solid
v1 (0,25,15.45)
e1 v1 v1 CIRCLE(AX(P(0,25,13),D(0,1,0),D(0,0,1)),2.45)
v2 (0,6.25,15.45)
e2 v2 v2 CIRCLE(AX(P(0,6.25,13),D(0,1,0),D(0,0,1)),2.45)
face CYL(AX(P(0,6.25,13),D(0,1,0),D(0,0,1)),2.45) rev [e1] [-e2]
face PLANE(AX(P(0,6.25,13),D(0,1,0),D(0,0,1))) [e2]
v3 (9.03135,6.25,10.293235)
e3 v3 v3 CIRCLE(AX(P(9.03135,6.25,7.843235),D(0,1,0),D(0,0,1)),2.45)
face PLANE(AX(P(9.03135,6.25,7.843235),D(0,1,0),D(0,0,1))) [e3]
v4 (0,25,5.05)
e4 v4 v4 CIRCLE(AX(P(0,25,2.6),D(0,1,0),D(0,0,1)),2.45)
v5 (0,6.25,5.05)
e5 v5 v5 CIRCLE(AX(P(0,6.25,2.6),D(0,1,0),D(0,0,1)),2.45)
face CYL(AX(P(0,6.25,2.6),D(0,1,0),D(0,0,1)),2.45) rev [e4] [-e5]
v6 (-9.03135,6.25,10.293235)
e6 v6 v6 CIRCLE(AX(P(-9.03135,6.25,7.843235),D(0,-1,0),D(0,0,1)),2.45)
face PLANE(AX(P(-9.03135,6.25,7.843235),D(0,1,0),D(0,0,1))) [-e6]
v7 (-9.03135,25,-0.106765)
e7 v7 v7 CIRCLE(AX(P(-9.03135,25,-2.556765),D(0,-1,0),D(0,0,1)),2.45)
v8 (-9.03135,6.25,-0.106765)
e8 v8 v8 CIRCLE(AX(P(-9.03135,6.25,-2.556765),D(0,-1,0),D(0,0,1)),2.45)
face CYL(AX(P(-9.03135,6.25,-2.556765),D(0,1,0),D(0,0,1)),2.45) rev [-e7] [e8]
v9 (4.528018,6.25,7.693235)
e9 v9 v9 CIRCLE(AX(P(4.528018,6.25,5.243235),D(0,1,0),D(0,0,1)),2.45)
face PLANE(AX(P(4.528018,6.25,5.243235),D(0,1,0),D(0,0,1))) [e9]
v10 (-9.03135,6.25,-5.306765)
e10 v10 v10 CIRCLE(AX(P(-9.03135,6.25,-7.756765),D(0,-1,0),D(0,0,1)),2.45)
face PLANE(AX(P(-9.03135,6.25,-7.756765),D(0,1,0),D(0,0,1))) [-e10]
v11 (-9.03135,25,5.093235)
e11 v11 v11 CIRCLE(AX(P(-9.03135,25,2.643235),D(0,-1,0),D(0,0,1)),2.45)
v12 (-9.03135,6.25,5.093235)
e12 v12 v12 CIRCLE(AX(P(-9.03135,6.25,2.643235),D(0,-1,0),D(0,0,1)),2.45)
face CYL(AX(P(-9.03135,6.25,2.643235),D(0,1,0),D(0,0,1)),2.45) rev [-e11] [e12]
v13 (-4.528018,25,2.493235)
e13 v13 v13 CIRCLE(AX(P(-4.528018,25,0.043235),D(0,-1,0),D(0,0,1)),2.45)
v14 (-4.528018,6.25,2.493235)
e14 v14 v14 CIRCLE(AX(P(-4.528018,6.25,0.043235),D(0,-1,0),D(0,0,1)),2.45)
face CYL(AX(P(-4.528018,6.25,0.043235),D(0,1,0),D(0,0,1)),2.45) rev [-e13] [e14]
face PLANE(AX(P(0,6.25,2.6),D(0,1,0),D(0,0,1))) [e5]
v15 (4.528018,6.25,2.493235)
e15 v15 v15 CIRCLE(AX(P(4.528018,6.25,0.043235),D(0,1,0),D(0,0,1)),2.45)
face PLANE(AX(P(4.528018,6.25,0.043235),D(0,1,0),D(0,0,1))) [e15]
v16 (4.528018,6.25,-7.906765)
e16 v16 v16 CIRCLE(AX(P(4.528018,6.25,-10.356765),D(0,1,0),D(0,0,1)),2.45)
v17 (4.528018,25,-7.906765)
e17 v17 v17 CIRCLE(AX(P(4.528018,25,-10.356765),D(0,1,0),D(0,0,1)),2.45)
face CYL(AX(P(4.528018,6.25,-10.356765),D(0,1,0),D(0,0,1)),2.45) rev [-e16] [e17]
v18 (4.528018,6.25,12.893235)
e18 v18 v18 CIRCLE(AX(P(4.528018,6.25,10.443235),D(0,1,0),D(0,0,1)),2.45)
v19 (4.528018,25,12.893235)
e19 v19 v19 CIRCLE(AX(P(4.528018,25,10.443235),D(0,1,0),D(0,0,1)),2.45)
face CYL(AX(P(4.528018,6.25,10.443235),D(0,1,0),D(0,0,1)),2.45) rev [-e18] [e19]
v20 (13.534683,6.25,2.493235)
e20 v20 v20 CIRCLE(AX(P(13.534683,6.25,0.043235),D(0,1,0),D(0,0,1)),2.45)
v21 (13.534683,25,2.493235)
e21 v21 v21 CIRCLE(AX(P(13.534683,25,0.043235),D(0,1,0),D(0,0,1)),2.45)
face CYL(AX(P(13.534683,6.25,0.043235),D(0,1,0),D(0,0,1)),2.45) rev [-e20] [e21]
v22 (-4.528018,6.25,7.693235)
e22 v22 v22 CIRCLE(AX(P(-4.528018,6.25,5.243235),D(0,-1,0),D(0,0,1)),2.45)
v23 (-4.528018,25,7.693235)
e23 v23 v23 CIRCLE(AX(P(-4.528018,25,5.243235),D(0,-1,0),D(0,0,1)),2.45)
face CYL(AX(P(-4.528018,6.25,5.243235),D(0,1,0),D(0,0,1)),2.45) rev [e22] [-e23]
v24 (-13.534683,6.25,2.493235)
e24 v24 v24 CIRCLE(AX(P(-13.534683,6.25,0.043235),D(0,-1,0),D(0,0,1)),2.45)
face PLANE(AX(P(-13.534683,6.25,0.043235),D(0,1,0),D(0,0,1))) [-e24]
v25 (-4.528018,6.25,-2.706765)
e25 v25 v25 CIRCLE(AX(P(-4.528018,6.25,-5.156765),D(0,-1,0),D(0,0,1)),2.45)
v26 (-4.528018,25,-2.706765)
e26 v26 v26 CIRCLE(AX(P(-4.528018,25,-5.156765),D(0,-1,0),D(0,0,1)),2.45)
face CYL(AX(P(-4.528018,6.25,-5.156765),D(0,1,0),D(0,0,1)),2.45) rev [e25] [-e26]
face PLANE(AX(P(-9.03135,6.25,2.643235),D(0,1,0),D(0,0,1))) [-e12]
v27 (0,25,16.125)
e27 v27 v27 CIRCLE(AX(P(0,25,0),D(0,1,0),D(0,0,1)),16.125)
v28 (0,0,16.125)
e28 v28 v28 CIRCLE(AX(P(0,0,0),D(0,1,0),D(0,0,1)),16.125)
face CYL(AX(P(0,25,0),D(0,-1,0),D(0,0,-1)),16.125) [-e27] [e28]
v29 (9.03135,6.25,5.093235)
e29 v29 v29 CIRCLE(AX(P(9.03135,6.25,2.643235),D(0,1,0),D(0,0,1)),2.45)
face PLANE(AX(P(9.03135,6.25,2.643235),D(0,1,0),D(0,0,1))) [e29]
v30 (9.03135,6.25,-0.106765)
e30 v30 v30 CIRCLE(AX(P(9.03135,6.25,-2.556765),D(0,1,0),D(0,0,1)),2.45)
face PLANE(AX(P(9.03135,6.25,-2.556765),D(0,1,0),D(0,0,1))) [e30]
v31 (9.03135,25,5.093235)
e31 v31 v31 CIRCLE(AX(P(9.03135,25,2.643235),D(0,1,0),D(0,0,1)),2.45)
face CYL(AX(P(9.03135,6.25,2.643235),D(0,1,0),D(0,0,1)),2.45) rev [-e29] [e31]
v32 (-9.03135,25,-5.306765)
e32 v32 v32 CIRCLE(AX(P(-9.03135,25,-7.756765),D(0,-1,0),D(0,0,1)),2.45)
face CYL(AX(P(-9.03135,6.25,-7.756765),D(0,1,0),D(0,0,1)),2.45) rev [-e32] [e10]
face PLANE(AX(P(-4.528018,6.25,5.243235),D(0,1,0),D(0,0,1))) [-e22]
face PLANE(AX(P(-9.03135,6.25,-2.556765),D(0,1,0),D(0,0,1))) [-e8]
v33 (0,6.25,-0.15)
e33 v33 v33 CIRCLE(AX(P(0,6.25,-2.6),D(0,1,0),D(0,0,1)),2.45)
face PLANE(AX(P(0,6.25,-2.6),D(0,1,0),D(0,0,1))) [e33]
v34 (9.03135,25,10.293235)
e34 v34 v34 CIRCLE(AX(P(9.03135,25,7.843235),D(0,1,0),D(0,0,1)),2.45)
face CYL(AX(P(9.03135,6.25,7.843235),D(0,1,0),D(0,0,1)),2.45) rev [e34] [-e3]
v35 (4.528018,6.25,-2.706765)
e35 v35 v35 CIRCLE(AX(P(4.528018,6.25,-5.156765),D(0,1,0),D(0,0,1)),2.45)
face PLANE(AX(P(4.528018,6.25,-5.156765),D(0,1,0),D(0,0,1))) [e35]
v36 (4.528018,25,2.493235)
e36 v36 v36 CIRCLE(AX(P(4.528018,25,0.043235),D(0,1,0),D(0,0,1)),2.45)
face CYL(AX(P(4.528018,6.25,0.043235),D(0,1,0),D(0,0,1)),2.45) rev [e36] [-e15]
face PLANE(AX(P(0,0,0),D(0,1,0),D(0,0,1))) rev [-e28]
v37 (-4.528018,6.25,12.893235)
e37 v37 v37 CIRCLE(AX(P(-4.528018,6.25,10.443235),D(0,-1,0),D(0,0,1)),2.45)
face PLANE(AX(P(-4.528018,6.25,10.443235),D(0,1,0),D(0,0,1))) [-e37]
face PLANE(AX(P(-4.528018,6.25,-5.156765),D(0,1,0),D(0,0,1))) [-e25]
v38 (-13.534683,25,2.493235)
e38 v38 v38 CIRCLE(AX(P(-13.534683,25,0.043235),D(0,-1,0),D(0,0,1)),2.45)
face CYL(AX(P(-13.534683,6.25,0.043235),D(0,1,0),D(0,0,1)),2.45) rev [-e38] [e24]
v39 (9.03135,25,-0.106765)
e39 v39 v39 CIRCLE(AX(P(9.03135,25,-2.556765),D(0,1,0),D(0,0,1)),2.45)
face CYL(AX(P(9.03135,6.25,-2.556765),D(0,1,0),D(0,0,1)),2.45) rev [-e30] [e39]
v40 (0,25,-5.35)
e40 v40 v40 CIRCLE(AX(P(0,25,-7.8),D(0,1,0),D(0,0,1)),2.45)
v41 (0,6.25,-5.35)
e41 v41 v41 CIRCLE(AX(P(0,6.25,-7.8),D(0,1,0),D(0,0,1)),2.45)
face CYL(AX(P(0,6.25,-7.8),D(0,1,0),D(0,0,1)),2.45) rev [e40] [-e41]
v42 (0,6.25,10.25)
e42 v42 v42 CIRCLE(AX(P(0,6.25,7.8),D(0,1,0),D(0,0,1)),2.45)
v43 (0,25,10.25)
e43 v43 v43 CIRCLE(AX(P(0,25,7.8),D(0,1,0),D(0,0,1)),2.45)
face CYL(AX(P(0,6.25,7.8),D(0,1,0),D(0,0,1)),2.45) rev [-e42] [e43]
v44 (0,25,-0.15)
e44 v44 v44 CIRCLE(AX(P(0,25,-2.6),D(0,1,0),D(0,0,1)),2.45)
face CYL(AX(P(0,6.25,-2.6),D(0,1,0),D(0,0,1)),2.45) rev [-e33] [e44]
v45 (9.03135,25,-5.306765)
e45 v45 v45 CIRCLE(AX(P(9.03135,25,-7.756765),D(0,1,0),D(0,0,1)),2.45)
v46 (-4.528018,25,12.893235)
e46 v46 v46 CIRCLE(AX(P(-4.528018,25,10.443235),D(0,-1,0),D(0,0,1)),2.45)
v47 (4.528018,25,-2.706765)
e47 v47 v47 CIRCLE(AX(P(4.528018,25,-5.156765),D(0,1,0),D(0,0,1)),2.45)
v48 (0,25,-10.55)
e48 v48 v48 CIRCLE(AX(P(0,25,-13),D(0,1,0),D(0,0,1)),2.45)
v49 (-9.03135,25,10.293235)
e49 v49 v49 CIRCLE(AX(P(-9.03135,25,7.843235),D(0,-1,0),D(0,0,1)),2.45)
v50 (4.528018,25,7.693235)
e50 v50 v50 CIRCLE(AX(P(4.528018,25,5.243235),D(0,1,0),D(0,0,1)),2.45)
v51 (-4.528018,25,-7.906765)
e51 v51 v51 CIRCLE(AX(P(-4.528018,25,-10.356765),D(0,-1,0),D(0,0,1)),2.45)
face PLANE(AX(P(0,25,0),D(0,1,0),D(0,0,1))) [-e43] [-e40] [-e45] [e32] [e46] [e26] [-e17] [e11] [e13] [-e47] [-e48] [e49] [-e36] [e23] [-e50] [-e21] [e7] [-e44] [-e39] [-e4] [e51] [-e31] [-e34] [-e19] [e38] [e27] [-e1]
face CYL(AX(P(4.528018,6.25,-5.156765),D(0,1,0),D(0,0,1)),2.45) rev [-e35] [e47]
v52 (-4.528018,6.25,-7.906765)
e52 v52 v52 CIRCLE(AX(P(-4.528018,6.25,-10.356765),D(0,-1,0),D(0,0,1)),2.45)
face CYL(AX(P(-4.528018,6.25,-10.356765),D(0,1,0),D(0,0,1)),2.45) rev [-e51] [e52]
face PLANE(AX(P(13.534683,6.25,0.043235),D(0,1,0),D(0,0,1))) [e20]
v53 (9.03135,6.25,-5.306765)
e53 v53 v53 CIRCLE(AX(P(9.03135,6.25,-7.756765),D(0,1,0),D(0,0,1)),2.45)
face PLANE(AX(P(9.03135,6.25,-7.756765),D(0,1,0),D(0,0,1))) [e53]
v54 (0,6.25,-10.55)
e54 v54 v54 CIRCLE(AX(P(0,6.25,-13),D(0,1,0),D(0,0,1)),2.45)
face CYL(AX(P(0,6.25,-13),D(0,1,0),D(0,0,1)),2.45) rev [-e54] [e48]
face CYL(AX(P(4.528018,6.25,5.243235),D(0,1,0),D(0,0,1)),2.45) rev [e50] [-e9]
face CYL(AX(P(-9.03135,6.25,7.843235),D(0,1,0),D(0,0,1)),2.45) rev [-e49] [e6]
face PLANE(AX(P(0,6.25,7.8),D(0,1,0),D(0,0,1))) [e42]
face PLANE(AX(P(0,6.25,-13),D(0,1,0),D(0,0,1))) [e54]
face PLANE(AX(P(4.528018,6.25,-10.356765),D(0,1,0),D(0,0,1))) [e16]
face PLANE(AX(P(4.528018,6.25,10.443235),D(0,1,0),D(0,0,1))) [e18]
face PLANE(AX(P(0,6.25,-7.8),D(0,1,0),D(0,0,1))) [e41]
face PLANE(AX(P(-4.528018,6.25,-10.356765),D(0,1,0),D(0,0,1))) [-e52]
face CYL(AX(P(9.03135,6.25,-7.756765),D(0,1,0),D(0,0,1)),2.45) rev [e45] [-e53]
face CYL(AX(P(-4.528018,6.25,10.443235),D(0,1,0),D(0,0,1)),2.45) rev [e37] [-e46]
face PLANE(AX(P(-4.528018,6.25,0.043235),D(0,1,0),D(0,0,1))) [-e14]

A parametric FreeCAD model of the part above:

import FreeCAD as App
import Part
import Sketcher

doc = App.newDocument("Part")
body = doc.addObject("PartDesign::Body", "Body")

sketch1 = body.newObject("Sketcher::SketchObject", "Sketch")
sketch1.AttachmentSupport = (doc.getObject("XZ_Plane"), [""])
sketch1.MapMode = "FlatFace"
sketch1.addGeometry(Part.Circle(App.Vector(0, 0, 0), App.Vector(0, 0, 1), 16), False)
sketch1.addConstraint(Sketcher.Constraint("Coincident", 0, 3, -1, 1))
sketch1.addConstraint(Sketcher.Constraint("Diameter", 0, 32.25))
pad1 = body.newObject("PartDesign::Pad", "Pad")
pad1.Profile = sketch1
pad1.Length = 25
pad1.Reversed = True

sketch2 = body.newObject("Sketcher::SketchObject", "Sketch001")
sketch2.AttachmentSupport = (doc.getObject("XZ_Plane"), [""])
sketch2.MapMode = "FlatFace"
sketch2.AttachmentOffset = App.Placement(App.Vector(0, 0, -25), App.Rotation())
sketch2.addGeometry(Part.Circle(App.Vector(0, 2.6, 0), App.Vector(0, 0, 1), 2.5), False)
sketch2.addGeometry(Part.Circle(App.Vector(0, -2.6, 0), App.Vector(0, 0, 1), 2.5), False)
sketch2.addGeometry(Part.Circle(App.Vector(0, -7.8, 0), App.Vector(0, 0, 1), 2.5), False)
sketch2.addGeometry(Part.Circle(App.Vector(0, -13, 0), App.Vector(0, 0, 1), 2.5), False)
sketch2.addGeometry(Part.Circle(App.Vector(0, 7.8, 0), App.Vector(0, 0, 1), 2.5), False)
sketch2.addGeometry(Part.Circle(App.Vector(0, 13, 0), App.Vector(0, 0, 1), 2.5), False)
sketch2.addConstraint(Sketcher.Constraint("Equal", 0, 1))
sketch2.addConstraint(Sketcher.Constraint("Equal", 1, 2))
sketch2.addConstraint(Sketcher.Constraint("Equal", 2, 3))
sketch2.addConstraint(Sketcher.Constraint("Equal", 3, 4))
sketch2.addConstraint(Sketcher.Constraint("Equal", 4, 5))
sketch2.addConstraint(Sketcher.Constraint("Symmetric", 0, 3, 1, 3, -1, 1))
sketch2.addConstraint(Sketcher.Constraint("Symmetric", 2, 3, 4, 3, -1, 1))
sketch2.addConstraint(Sketcher.Constraint("Symmetric", 3, 3, 5, 3, -1, 1))
sketch2.addConstraint(Sketcher.Constraint("PointOnObject", 0, 3, -2))
sketch2.addConstraint(Sketcher.Constraint("PointOnObject", 2, 3, -2))
sketch2.addConstraint(Sketcher.Constraint("PointOnObject", 3, 3, -2))
sketch2.addConstraint(Sketcher.Constraint("Diameter", 0, 4.9))
sketch2.addConstraint(Sketcher.Constraint("DistanceY", 3, 3, -1, 1, 13.0))
sketch2.addConstraint(Sketcher.Constraint("DistanceY", -1, 1, 0, 3, 2.6))
sketch2.addConstraint(Sketcher.Constraint("DistanceY", 2, 3, -1, 1, 7.8))
pocket1 = body.newObject("PartDesign::Pocket", "Pocket")
pocket1.Profile = sketch2
pocket1.Length = 18.75
pocket1.Reversed = True

sketch3 = body.newObject("Sketcher::SketchObject", "Sketch002")
sketch3.AttachmentSupport = (doc.getObject("XZ_Plane"), [""])
sketch3.MapMode = "FlatFace"
sketch3.AttachmentOffset = App.Placement(App.Vector(0, 0, -25), App.Rotation())
sketch3.addGeometry(Part.Circle(App.Vector(4.5, 0, 0), App.Vector(0, 0, 1), 2.5), False)
sketch3.addGeometry(Part.Circle(App.Vector(4.5, -5.2, 0), App.Vector(0, 0, 1), 2.5), False)
sketch3.addGeometry(Part.Circle(App.Vector(4.5, 5.2, 0), App.Vector(0, 0, 1), 2.5), False)
sketch3.addGeometry(Part.Circle(App.Vector(4.5, 10.4, 0), App.Vector(0, 0, 1), 2.5), False)
sketch3.addGeometry(Part.Circle(App.Vector(4.5, -10.4, 0), App.Vector(0, 0, 1), 2.5), False)
sketch3.addConstraint(Sketcher.Constraint("Equal", 0, 1))
sketch3.addConstraint(Sketcher.Constraint("Equal", 1, 2))
sketch3.addConstraint(Sketcher.Constraint("Equal", 2, 3))
sketch3.addConstraint(Sketcher.Constraint("Equal", 3, 4))
sketch3.addConstraint(Sketcher.Constraint("Vertical", 0, 3, 1, 3))
sketch3.addConstraint(Sketcher.Constraint("Vertical", 1, 3, 2, 3))
sketch3.addConstraint(Sketcher.Constraint("Vertical", 2, 3, 3, 3))
sketch3.addConstraint(Sketcher.Constraint("Vertical", 3, 3, 4, 3))
sketch3.addConstraint(Sketcher.Constraint("Diameter", 0, 4.9))
sketch3.addConstraint(Sketcher.Constraint("DistanceY", 1, 3, 0, 3, 5.2))
sketch3.addConstraint(Sketcher.Constraint("DistanceY", 0, 3, 2, 3, 5.2))
sketch3.addConstraint(Sketcher.Constraint("DistanceY", 2, 3, 3, 3, 5.2))
sketch3.addConstraint(Sketcher.Constraint("DistanceY", 4, 3, 1, 3, 5.2))
sketch3.addConstraint(Sketcher.Constraint("DistanceX", -1, 1, 0, 3, 4.528018))
sketch3.addConstraint(Sketcher.Constraint("DistanceY", -1, 1, 0, 3, 0.043235))
pocket2 = body.newObject("PartDesign::Pocket", "Pocket001")
pocket2.Profile = sketch3
pocket2.Length = 18.75
pocket2.Reversed = True

sketch4 = body.newObject("Sketcher::SketchObject", "Sketch003")
sketch4.AttachmentSupport = (doc.getObject("XZ_Plane"), [""])
sketch4.MapMode = "FlatFace"
sketch4.AttachmentOffset = App.Placement(App.Vector(0, 0, -25), App.Rotation())
sketch4.addGeometry(Part.Circle(App.Vector(9, -7.8, 0), App.Vector(0, 0, 1), 2.5), False)
sketch4.addGeometry(Part.Circle(App.Vector(9, -2.6, 0), App.Vector(0, 0, 1), 2.5), False)
sketch4.addGeometry(Part.Circle(App.Vector(9, 2.6, 0), App.Vector(0, 0, 1), 2.5), False)
sketch4.addGeometry(Part.Circle(App.Vector(9, 7.8, 0), App.Vector(0, 0, 1), 2.5), False)
sketch4.addConstraint(Sketcher.Constraint("Equal", 0, 1))
sketch4.addConstraint(Sketcher.Constraint("Equal", 1, 2))
sketch4.addConstraint(Sketcher.Constraint("Equal", 2, 3))
sketch4.addConstraint(Sketcher.Constraint("Vertical", 0, 3, 1, 3))
sketch4.addConstraint(Sketcher.Constraint("Vertical", 1, 3, 2, 3))
sketch4.addConstraint(Sketcher.Constraint("Vertical", 2, 3, 3, 3))
sketch4.addConstraint(Sketcher.Constraint("Diameter", 0, 4.9))
sketch4.addConstraint(Sketcher.Constraint("DistanceY", 0, 3, 1, 3, 5.2))
sketch4.addConstraint(Sketcher.Constraint("DistanceY", 1, 3, 2, 3, 5.2))
sketch4.addConstraint(Sketcher.Constraint("DistanceY", 2, 3, 3, 3, 5.2))
sketch4.addConstraint(Sketcher.Constraint("DistanceX", -1, 1, 0, 3, 9.03135))
sketch4.addConstraint(Sketcher.Constraint("DistanceY", 0, 3, -1, 1, 7.756765))
pocket3 = body.newObject("PartDesign::Pocket", "Pocket002")
pocket3.Profile = sketch4
pocket3.Length = 18.75
pocket3.Reversed = True

sketch5 = body.newObject("Sketcher::SketchObject", "Sketch004")
sketch5.AttachmentSupport = (doc.getObject("XZ_Plane"), [""])
sketch5.MapMode = "FlatFace"
sketch5.AttachmentOffset = App.Placement(App.Vector(0, 0, -25), App.Rotation())
sketch5.addGeometry(Part.Circle(App.Vector(13.5, 0, 0), App.Vector(0, 0, 1), 2.5), False)
sketch5.addConstraint(Sketcher.Constraint("Diameter", 0, 4.9))
sketch5.addConstraint(Sketcher.Constraint("DistanceX", -1, 1, 0, 3, 13.534683))
sketch5.addConstraint(Sketcher.Constraint("DistanceY", -1, 1, 0, 3, 0.043235))
pocket4 = body.newObject("PartDesign::Pocket", "Pocket003")
pocket4.Profile = sketch5
pocket4.Length = 18.75
pocket4.Reversed = True
doc.recompute()

mirrored = body.newObject("PartDesign::Mirrored", "Mirrored")
mirrored.Originals = [pocket2, pocket3, pocket4]
mirrored.MirrorPlane = (doc.getObject("YZ_Plane"), [""])
body.Tip = mirrored

doc.recompute()
